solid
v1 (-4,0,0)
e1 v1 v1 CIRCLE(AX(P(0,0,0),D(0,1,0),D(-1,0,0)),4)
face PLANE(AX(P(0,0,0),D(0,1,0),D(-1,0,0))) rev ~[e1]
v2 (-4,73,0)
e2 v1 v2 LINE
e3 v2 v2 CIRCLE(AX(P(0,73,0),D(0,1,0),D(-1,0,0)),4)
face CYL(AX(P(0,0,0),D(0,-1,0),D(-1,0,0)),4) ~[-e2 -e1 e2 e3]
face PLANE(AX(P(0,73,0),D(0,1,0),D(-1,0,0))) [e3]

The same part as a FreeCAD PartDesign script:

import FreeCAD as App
import Part
import Sketcher
from FreeCAD import Vector

doc = App.newDocument("Part")
body = doc.addObject("PartDesign::Body", "Body")

# Sketch on XZ plane
sketch1 = body.newObject("Sketcher::SketchObject", "Sketch")
sketch1.AttachmentSupport = (doc.getObject("XZ_Plane"), [""])
sketch1.MapMode = "FlatFace"
sketch1.addGeometry(Part.Circle(Vector(0, 0, 0), Vector(0, 0, 1), 4), False)
sketch1.addConstraint(Sketcher.Constraint("Coincident", 0, 3, -1, 1))
sketch1.addConstraint(Sketcher.Constraint("Diameter", 0, 8.0))
pad1 = body.newObject("PartDesign::Pad", "Pad")
pad1.Profile = sketch1
pad1.Length = 73
pad1.Reversed = True

doc.recompute()
